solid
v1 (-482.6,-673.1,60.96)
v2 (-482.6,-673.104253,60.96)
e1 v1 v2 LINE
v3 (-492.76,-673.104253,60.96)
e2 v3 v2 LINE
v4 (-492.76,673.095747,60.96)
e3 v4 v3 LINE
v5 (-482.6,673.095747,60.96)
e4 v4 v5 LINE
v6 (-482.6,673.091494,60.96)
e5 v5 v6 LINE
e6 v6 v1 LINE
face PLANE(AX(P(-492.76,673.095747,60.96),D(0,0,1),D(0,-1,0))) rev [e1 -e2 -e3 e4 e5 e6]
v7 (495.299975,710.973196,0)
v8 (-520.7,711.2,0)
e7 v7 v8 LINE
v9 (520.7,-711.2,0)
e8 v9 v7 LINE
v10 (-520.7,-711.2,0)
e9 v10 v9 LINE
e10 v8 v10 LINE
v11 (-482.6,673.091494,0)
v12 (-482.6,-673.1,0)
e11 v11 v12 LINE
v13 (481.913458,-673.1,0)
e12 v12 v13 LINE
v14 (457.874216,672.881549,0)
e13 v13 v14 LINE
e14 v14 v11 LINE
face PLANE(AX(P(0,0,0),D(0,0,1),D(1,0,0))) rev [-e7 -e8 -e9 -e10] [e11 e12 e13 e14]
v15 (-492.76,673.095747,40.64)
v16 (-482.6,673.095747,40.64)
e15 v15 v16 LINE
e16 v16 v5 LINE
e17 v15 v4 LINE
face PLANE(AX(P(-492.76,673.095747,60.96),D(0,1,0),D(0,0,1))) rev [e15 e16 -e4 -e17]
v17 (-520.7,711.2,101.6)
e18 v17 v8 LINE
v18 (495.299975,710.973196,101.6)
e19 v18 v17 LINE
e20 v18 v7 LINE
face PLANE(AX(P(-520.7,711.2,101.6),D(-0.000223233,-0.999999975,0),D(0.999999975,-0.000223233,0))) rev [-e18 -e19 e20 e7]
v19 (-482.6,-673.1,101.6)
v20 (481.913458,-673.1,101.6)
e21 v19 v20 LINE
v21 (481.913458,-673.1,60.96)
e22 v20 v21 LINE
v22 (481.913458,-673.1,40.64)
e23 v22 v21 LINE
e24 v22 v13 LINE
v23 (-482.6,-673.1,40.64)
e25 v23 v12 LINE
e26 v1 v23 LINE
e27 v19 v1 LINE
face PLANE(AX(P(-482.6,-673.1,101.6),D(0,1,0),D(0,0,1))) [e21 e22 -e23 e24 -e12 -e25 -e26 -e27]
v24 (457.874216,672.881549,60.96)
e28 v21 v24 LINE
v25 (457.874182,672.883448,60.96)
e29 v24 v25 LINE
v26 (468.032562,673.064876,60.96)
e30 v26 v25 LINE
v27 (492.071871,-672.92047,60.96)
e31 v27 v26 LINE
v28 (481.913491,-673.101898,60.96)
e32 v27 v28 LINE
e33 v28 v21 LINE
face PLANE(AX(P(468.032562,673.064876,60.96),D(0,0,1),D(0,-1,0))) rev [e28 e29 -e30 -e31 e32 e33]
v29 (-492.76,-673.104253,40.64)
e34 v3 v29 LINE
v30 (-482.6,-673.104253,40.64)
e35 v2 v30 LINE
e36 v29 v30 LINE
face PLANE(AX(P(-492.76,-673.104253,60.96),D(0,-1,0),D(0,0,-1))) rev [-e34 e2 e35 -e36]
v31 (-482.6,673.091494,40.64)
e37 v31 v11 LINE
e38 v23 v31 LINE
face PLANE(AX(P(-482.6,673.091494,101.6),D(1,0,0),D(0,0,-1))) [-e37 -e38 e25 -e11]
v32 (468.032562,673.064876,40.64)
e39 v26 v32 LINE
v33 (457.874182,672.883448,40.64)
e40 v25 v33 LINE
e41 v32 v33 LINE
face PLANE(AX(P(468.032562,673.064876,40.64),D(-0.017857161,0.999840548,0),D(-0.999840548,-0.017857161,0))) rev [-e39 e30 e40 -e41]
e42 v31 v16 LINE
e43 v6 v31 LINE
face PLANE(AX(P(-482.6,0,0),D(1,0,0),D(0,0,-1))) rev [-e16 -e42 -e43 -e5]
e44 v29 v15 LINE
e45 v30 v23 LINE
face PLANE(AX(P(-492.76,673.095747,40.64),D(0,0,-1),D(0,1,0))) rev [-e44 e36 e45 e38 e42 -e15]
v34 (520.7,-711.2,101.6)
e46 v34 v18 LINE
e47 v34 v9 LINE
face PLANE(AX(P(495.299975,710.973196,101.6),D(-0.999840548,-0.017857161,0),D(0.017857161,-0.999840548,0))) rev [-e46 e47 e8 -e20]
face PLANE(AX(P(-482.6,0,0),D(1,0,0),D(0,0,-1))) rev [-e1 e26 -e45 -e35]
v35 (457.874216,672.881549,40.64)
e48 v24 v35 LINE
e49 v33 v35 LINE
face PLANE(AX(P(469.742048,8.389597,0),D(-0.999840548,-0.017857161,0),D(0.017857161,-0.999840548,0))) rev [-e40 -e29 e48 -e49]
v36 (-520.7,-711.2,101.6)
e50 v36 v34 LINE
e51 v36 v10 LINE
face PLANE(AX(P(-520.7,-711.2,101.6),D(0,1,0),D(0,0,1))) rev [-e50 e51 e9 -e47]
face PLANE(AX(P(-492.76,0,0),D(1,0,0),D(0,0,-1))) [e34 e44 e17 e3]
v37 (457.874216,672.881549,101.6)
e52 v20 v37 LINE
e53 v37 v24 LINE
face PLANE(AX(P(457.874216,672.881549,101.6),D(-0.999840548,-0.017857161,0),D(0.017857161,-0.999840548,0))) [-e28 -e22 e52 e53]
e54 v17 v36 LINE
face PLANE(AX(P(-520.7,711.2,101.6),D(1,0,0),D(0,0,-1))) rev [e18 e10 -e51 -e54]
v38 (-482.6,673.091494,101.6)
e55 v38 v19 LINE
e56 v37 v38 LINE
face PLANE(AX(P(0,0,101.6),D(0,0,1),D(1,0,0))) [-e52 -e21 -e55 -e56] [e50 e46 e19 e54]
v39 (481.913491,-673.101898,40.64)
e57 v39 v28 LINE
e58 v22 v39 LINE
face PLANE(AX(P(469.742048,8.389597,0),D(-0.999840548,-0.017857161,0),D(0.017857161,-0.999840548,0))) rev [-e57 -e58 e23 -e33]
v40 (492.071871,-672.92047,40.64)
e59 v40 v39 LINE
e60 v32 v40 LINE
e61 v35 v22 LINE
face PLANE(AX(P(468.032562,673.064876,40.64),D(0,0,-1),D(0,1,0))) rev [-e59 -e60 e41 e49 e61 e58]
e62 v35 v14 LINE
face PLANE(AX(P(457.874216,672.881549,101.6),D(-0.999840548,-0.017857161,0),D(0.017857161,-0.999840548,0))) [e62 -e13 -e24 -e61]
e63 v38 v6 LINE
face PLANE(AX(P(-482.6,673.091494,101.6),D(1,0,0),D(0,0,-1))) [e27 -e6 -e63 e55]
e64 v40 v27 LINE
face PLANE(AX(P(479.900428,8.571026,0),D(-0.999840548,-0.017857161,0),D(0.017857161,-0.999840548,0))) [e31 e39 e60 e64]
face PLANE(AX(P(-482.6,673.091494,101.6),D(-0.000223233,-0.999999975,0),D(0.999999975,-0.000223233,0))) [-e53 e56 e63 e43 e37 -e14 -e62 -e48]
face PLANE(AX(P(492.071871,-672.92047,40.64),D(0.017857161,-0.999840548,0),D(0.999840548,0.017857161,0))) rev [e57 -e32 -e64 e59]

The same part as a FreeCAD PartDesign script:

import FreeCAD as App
import Part
import Sketcher
from FreeCAD import Vector
Q = App.Units.Quantity

doc = App.newDocument("Part")
params = doc.addObject("Spreadsheet::Sheet", "Params")
for row, (alias, value) in enumerate([
    ("sketch1_width", "41 in"),
    ("sketch1_height", "56 in"),
    ("sketch1_length", "40 in"),
    ("sketch1_length2", "56 in"),
    ("pad1_length", "4 in"),
    ("sketch2_height", "53 in"),
    ("sketch2_width", "0.8 in"),
    ("pocket1_length", "0.4 in"),
    ("sketch3_width", "53 in"),
    ("sketch3_height", "0.8 in"),
    ("pocket2_length", "0.4 in"),
], start=1):
    params.set(f"A{row}", alias)
    params.set(f"B{row}", "=" + value)
    params.setAlias(f"B{row}", alias)

body = doc.addObject("PartDesign::Body", "Body")

sketch1 = body.newObject("Sketcher::SketchObject", "Sketch")
sketch1.AttachmentSupport = (doc.getObject("XY_Plane"), [""])
sketch1.MapMode = "FlatFace"
sketch1.addGeometry(Part.LineSegment(Vector(495, 711, 0), Vector(-521, 711, 0)), False)
sketch1.addGeometry(Part.LineSegment(Vector(-521, 711, 0), Vector(-521, -711, 0)), False)
sketch1.addGeometry(Part.LineSegment(Vector(-521, -711, 0), Vector(521, -711, 0)), False)
sketch1.addGeometry(Part.LineSegment(Vector(521, -711, 0), Vector(495, 711, 0)), False)
sketch1.addGeometry(Part.LineSegment(Vector(-483, 673, 0), Vector(458, 673, 0)), False)
sketch1.addGeometry(Part.LineSegment(Vector(458, 673, 0), Vector(482, -673, 0)), False)
sketch1.addGeometry(Part.LineSegment(Vector(482, -673, 0), Vector(-483, -673, 0)), False)
sketch1.addGeometry(Part.LineSegment(Vector(-483, -673, 0), Vector(-483, 673, 0)), False)
sketch1.addConstraint(Sketcher.Constraint("Coincident", 0, 2, 1, 1))
sketch1.addConstraint(Sketcher.Constraint("Coincident", 1, 2, 2, 1))
sketch1.addConstraint(Sketcher.Constraint("Coincident", 2, 2, 3, 1))
sketch1.addConstraint(Sketcher.Constraint("Coincident", 3, 2, 0, 1))
sketch1.addConstraint(Sketcher.Constraint("Coincident", 4, 2, 5, 1))
sketch1.addConstraint(Sketcher.Constraint("Coincident", 5, 2, 6, 1))
sketch1.addConstraint(Sketcher.Constraint("Coincident", 6, 2, 7, 1))
sketch1.addConstraint(Sketcher.Constraint("Coincident", 7, 2, 4, 1))
sketch1.addConstraint(Sketcher.Constraint("Vertical", 1))
sketch1.addConstraint(Sketcher.Constraint("Horizontal", 2))
sketch1.addConstraint(Sketcher.Constraint("Horizontal", 6))
sketch1.addConstraint(Sketcher.Constraint("Vertical", 7))
sketch1.addConstraint(Sketcher.Constraint("Symmetric", 0, 2, 2, 2, -1, 1))
sketch1.addConstraint(Sketcher.Constraint("Parallel", 0, 4))
sketch1.addConstraint(Sketcher.Constraint("Parallel", 3, 5))
sketch1.addConstraint(Sketcher.Constraint("DistanceX", 2, 1, 2, 2, Q("41 in")))
sketch1.addConstraint(Sketcher.Constraint("DistanceY", 1, 2, 1, 1, Q("56 in")))
sketch1.addConstraint(Sketcher.Constraint("Distance", 0, Q("40 in")))
sketch1.addConstraint(Sketcher.Constraint("Distance", 3, Q("56 in")))
sketch1.addConstraint(Sketcher.Constraint("DistanceX", 6, 2, -1, 1, Q("19 in")))
sketch1.addConstraint(Sketcher.Constraint("DistanceY", 5, 2, -1, 1, Q("26.5 in")))
sketch1.addConstraint(Sketcher.Constraint("DistanceY", 7, 2, 3, 2, Q("37.881702 mm")))
sketch1.addConstraint(Sketcher.Constraint("Distance", 4, Q("940.474239 mm")))
sketch1.setExpression("Constraints[15]", "Params.sketch1_width")
sketch1.setExpression("Constraints[16]", "Params.sketch1_height")
sketch1.setExpression("Constraints[17]", "Params.sketch1_length")
sketch1.setExpression("Constraints[18]", "Params.sketch1_length2")
pad1 = body.newObject("PartDesign::Pad", "Pad")
pad1.Profile = sketch1
pad1.setExpression("Length", "Params.pad1_length")

sketch2 = body.newObject("Sketcher::SketchObject", "Sketch001")
sketch2.Placement = App.Placement(Vector(469.742048, 8.389597, 0), App.Rotation(Vector(0, 0, 1), Vector(-0.017857161, 0.999840548, 0), Vector(-0.999840548, -0.017857161, 0), "ZXY"))
sketch2.addGeometry(Part.LineSegment(Vector(41, 665, 0), Vector(41, -682, 0)), False)
sketch2.addGeometry(Part.LineSegment(Vector(41, -682, 0), Vector(61, -682, 0)), False)
sketch2.addGeometry(Part.LineSegment(Vector(61, -682, 0), Vector(61, 665, 0)), False)
sketch2.addGeometry(Part.LineSegment(Vector(61, 665, 0), Vector(41, 665, 0)), False)
sketch2.addConstraint(Sketcher.Constraint("Coincident", 0, 2, 1, 1))
sketch2.addConstraint(Sketcher.Constraint("Coincident", 1, 2, 2, 1))
sketch2.addConstraint(Sketcher.Constraint("Coincident", 2, 2, 3, 1))
sketch2.addConstraint(Sketcher.Constraint("Coincident", 3, 2, 0, 1))
sketch2.addConstraint(Sketcher.Constraint("Vertical", 0))
sketch2.addConstraint(Sketcher.Constraint("Horizontal", 1))
sketch2.addConstraint(Sketcher.Constraint("Vertical", 2))
sketch2.addConstraint(Sketcher.Constraint("Horizontal", 3))
sketch2.addConstraint(Sketcher.Constraint("DistanceY", 0, 2, 0, 1, Q("53 in")))
sketch2.addConstraint(Sketcher.Constraint("DistanceX", 1, 1, 1, 2, Q("0.8 in")))
sketch2.addConstraint(Sketcher.Constraint("DistanceX", -1, 1, 0, 2, Q("1.6 in")))
sketch2.addConstraint(Sketcher.Constraint("DistanceY", 0, 2, -1, 1, Q("681.600177 mm")))
sketch2.setExpression("Constraints[8]", "Params.sketch2_height")
sketch2.setExpression("Constraints[9]", "Params.sketch2_width")
pocket1 = body.newObject("PartDesign::Pocket", "Pocket")
pocket1.Profile = sketch2
pocket1.setExpression("Length", "Params.pocket1_length")

sketch3 = body.newObject("Sketcher::SketchObject", "Sketch002")
sketch3.AttachmentSupport = (doc.getObject("YZ_Plane"), [""])
sketch3.MapMode = "FlatFace"
sketch3.AttachmentOffset = App.Placement(Vector(0, 0, -19 * 25.4), App.Rotation())
sketch3.addGeometry(Part.LineSegment(Vector(673, 61, 0), Vector(-673, 61, 0)), False)
sketch3.addGeometry(Part.LineSegment(Vector(-673, 61, 0), Vector(-673, 41, 0)), False)
sketch3.addGeometry(Part.LineSegment(Vector(-673, 41, 0), Vector(673, 41, 0)), False)
sketch3.addGeometry(Part.LineSegment(Vector(673, 41, 0), Vector(673, 61, 0)), False)
sketch3.addConstraint(Sketcher.Constraint("Coincident", 0, 2, 1, 1))
sketch3.addConstraint(Sketcher.Constraint("Coincident", 1, 2, 2, 1))
sketch3.addConstraint(Sketcher.Constraint("Coincident", 2, 2, 3, 1))
sketch3.addConstraint(Sketcher.Constraint("Coincident", 3, 2, 0, 1))
sketch3.addConstraint(Sketcher.Constraint("Horizontal", 0))
sketch3.addConstraint(Sketcher.Constraint("Vertical", 1))
sketch3.addConstraint(Sketcher.Constraint("Horizontal", 2))
sketch3.addConstraint(Sketcher.Constraint("Vertical", 3))
sketch3.addConstraint(Sketcher.Constraint("DistanceX", 0, 2, 0, 1, Q("53 in")))
sketch3.addConstraint(Sketcher.Constraint("DistanceY", 1, 2, 1, 1, Q("0.8 in")))
sketch3.addConstraint(Sketcher.Constraint("DistanceY", -1, 1, 0, 2, Q("2.4 in")))
sketch3.addConstraint(Sketcher.Constraint("DistanceX", 0, 2, -1, 1, Q("673.104253 mm")))
sketch3.setExpression("Constraints[8]", "Params.sketch3_width")
sketch3.setExpression("Constraints[9]", "Params.sketch3_height")
pocket2 = body.newObject("PartDesign::Pocket", "Pocket001")
pocket2.Profile = sketch3
pocket2.setExpression("Length", "Params.pocket2_length")

doc.recompute()
